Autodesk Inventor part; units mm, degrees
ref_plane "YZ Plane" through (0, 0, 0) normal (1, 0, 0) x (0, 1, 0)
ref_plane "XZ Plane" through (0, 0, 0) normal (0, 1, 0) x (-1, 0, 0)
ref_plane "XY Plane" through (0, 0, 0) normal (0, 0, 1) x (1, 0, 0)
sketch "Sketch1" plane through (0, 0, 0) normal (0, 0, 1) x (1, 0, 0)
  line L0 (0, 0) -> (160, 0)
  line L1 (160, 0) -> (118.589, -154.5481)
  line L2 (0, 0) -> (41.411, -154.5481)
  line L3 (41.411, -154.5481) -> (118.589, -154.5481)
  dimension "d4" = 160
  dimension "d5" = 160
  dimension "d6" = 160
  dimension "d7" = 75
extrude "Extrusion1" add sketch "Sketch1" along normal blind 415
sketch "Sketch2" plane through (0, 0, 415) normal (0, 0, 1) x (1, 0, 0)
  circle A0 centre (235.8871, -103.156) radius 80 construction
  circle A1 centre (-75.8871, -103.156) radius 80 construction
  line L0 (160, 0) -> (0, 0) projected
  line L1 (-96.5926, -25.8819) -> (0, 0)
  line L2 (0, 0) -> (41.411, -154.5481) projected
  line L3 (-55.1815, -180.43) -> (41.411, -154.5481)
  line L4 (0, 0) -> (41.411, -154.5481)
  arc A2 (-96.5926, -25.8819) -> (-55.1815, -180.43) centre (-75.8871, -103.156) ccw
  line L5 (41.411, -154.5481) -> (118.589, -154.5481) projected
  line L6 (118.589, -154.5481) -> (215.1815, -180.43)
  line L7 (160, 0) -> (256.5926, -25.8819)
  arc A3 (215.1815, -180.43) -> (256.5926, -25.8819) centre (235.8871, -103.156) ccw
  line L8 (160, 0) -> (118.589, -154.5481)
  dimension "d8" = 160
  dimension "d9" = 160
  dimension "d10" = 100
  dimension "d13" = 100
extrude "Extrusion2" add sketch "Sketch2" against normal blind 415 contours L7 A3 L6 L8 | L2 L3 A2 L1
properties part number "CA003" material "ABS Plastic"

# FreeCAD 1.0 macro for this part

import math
import FreeCAD as App
import Part
import Sketcher

V = App.Vector
Q = App.Units.Quantity


def add_polygon(sketch, points):
    """Adds a closed chain of lines whose ends are joined by coincident constraints."""
    first, n = sketch.GeometryCount, len(points)
    for a, b in zip(points, points[1:] + points[:1]):
        sketch.addGeometry(Part.LineSegment(App.Vector(*a, 0), App.Vector(*b, 0)), False)
    for i in range(n):
        sketch.addConstraint(Sketcher.Constraint("Coincident", first + i, 2, first + (i + 1) % n, 1))

doc = App.newDocument("Part")
body = doc.addObject("PartDesign::Body", "Body")

sketch1 = body.newObject("Sketcher::SketchObject", "Sketch")
sketch1.AttachmentSupport = (doc.getObject("XY_Plane"), [""])
sketch1.MapMode = "FlatFace"
add_polygon(sketch1, [(160, 0), (0, 0), (41, -155), (119, -155)])
sketch1.addConstraint([
    Sketcher.Constraint("Horizontal", 0),
    Sketcher.Constraint("Horizontal", 2),
    Sketcher.Constraint("Coincident", 0, 2, -1, 1),
    Sketcher.Constraint("Equal", 1, 3),
    Sketcher.Constraint("DistanceX", 0, 2, 0, 1, 160.0),
    Sketcher.Constraint("Angle", 1, Q("-75 deg")),
    Sketcher.Constraint("Distance", 1, 160.0),
])
pad1 = body.newObject("PartDesign::Pad", "Pad")
pad1.Profile = sketch1
pad1.Length = 415

sketch2 = body.newObject("Sketcher::SketchObject", "Sketch001")
sketch2.AttachmentSupport = (doc.getObject("XY_Plane"), [""])
sketch2.MapMode = "FlatFace"
sketch2.AttachmentOffset = App.Placement(V(0, 0, 415), App.Rotation())
sketch2.addGeometry([
    Part.LineSegment(V(257, -26, 0), V(160, 0, 0)),
    Part.LineSegment(V(160, 0, 0), V(119, -155, 0)),
    Part.LineSegment(V(119, -155, 0), V(215, -180, 0)),
    Part.ArcOfCircle(Part.Circle(V(236, -103, 0), V(0, 0, 1), 80), math.radians(-105), math.radians(75)),
    Part.LineSegment(V(41, -155, 0), V(0, 0, 0)),
    Part.LineSegment(V(0, 0, 0), V(-97, -26, 0)),
    Part.ArcOfCircle(Part.Circle(V(-76, -103, 0), V(0, 0, 1), 80), math.radians(105), math.radians(285)),
    Part.LineSegment(V(-55, -180, 0), V(41, -155, 0)),
], False)
sketch2.addConstraint([
    Sketcher.Constraint("Coincident", 0, 2, 1, 1),
    Sketcher.Constraint("Coincident", 1, 2, 2, 1),
    Sketcher.Constraint("Tangent", 2, 2, 3, 1),
    Sketcher.Constraint("Tangent", 3, 2, 0, 1),
    Sketcher.Constraint("Coincident", 4, 2, 5, 1),
    Sketcher.Constraint("Tangent", 5, 2, 6, 1),
    Sketcher.Constraint("Tangent", 6, 2, 7, 1),
    Sketcher.Constraint("Coincident", 7, 2, 4, 1),
    Sketcher.Constraint("Coincident", 4, 2, -1, 1),
    Sketcher.Constraint("Equal", 3, 6),
    Sketcher.Constraint("PointOnObject", 0, 2, -1),
    Sketcher.Constraint("Perpendicular", 0, 1),
    Sketcher.Constraint("Perpendicular", 1, 2),
    Sketcher.Constraint("Perpendicular", 4, 5),
    Sketcher.Constraint("Parallel", 5, 7),
    Sketcher.Constraint("Horizontal", 3, 3, 6, 3),
    Sketcher.Constraint("Horizontal", 3, 2, 5, 2),
    Sketcher.Constraint("Radius", 3, 80.0),
    Sketcher.Constraint("Distance", 0, 100.0),
    Sketcher.Constraint("DistanceX", -1, 1, 0, 2, 160.0),
    Sketcher.Constraint("Angle", 0, Q("165 deg")),
])
pad2 = body.newObject("PartDesign::Pad", "Pad001")
pad2.Profile = sketch2
pad2.Length = 415
pad2.Reversed = True

doc.recompute()
